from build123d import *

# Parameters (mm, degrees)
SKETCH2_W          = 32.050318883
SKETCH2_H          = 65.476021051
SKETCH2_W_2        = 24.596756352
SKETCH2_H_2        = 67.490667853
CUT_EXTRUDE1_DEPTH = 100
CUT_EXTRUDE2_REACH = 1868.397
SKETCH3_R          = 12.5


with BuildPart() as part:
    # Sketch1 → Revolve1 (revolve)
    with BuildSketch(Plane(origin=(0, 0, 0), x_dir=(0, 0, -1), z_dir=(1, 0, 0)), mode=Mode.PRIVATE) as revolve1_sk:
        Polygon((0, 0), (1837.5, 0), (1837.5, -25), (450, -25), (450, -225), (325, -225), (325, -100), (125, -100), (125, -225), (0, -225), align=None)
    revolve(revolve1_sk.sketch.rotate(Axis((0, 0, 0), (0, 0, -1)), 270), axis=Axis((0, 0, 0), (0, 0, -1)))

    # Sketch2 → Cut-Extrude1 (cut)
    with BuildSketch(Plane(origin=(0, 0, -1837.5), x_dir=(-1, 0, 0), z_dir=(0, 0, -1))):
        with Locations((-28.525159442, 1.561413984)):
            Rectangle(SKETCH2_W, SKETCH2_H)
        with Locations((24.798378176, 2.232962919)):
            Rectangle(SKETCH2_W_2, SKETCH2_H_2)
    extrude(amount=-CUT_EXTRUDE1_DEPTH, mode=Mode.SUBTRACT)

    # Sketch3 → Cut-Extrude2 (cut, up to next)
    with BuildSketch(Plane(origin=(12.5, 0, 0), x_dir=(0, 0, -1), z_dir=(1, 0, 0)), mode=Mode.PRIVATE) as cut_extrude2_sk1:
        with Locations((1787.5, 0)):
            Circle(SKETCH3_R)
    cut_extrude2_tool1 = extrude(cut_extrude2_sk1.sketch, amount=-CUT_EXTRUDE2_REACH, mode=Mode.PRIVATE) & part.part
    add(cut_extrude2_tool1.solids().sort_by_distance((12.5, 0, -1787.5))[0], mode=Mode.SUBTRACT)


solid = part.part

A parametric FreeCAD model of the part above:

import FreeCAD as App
import Part
import Sketcher
from FreeCAD import Vector

doc = App.newDocument("Part")
body = doc.addObject("PartDesign::Body", "Body")

sketch1 = body.newObject("Sketcher::SketchObject", "Sketch")
sketch1.AttachmentSupport = (doc.getObject("YZ_Plane"), [""])
sketch1.MapMode = "FlatFace"
sketch1.addGeometry(Part.LineSegment(Vector(0, -1837.5, 0), Vector(0, 0, 0)), False)
sketch1.addGeometry(Part.LineSegment(Vector(0, 0, 0), Vector(-225, 0, 0)), False)
sketch1.addGeometry(Part.LineSegment(Vector(-225, 0, 0), Vector(-225, -125, 0)), False)
sketch1.addGeometry(Part.LineSegment(Vector(-225, -125, 0), Vector(-100, -125, 0)), False)
sketch1.addGeometry(Part.LineSegment(Vector(-100, -125, 0), Vector(-100, -325, 0)), False)
sketch1.addGeometry(Part.LineSegment(Vector(-100, -325, 0), Vector(-225, -325, 0)), False)
sketch1.addGeometry(Part.LineSegment(Vector(-225, -325, 0), Vector(-225, -450, 0)), False)
sketch1.addGeometry(Part.LineSegment(Vector(-225, -450, 0), Vector(-25, -450, 0)), False)
sketch1.addGeometry(Part.LineSegment(Vector(-25, -450, 0), Vector(-25, -1837.5, 0)), False)
sketch1.addGeometry(Part.LineSegment(Vector(-25, -1837.5, 0), Vector(0, -1837.5, 0)), False)
sketch1.addConstraint(Sketcher.Constraint("Coincident", 0, 2, 1, 1))
sketch1.addConstraint(Sketcher.Constraint("Coincident", 1, 2, 2, 1))
sketch1.addConstraint(Sketcher.Constraint("Coincident", 2, 2, 3, 1))
sketch1.addConstraint(Sketcher.Constraint("Coincident", 3, 2, 4, 1))
sketch1.addConstraint(Sketcher.Constraint("Coincident", 4, 2, 5, 1))
sketch1.addConstraint(Sketcher.Constraint("Coincident", 5, 2, 6, 1))
sketch1.addConstraint(Sketcher.Constraint("Coincident", 6, 2, 7, 1))
sketch1.addConstraint(Sketcher.Constraint("Coincident", 7, 2, 8, 1))
sketch1.addConstraint(Sketcher.Constraint("Coincident", 8, 2, 9, 1))
sketch1.addConstraint(Sketcher.Constraint("Coincident", 9, 2, 0, 1))
sketch1.addConstraint(Sketcher.Constraint("Vertical", 0))
sketch1.addConstraint(Sketcher.Constraint("Horizontal", 1))
sketch1.addConstraint(Sketcher.Constraint("Vertical", 2))
sketch1.addConstraint(Sketcher.Constraint("Horizontal", 3))
sketch1.addConstraint(Sketcher.Constraint("Vertical", 4))
sketch1.addConstraint(Sketcher.Constraint("Horizontal", 5))
sketch1.addConstraint(Sketcher.Constraint("Vertical", 6))
sketch1.addConstraint(Sketcher.Constraint("Horizontal", 7))
sketch1.addConstraint(Sketcher.Constraint("Vertical", 8))
sketch1.addConstraint(Sketcher.Constraint("Horizontal", 9))
sketch1.addConstraint(Sketcher.Constraint("Coincident", 0, 2, -1, 1))
sketch1.addConstraint(Sketcher.Constraint("Vertical", 2, 2, 5, 2))
sketch1.addConstraint(Sketcher.Constraint("Equal", 5, 2))
sketch1.addConstraint(Sketcher.Constraint("Equal", 7, 4))
sketch1.addConstraint(Sketcher.Constraint("Equal", 2, 6))
sketch1.addConstraint(Sketcher.Constraint("DistanceX", 1, 2, 1, 1, 225.0))
sketch1.addConstraint(Sketcher.Constraint("DistanceX", 3, 1, 3, 2, 125.0))
sketch1.addConstraint(Sketcher.Constraint("DistanceX", 7, 1, 7, 2, 200.0))
sketch1.addConstraint(Sketcher.Constraint("DistanceY", 0, 1, 0, 2, 1837.5))
revolution = body.newObject("PartDesign::Revolution", "Revolution")
revolution.Profile = sketch1
revolution.ReferenceAxis = (sketch1, ["V_Axis"])
revolution.Angle = 360

sketch2 = body.newObject("Sketcher::SketchObject", "Sketch001")
sketch2.AttachmentSupport = (doc.getObject("XY_Plane"), [""])
sketch2.MapMode = "FlatFace"
sketch2.AttachmentOffset = App.Placement(Vector(0, 0, -1837.5), App.Rotation())
sketch2.addGeometry(Part.LineSegment(Vector(44.550319, 34.299425, 0), Vector(44.550319, -31.176597, 0)), False)
sketch2.addGeometry(Part.LineSegment(Vector(44.550319, -31.176597, 0), Vector(12.5, -31.176597, 0)), False)
sketch2.addGeometry(Part.LineSegment(Vector(12.5, -31.176597, 0), Vector(12.5, 34.299425, 0)), False)
sketch2.addGeometry(Part.LineSegment(Vector(12.5, 34.299425, 0), Vector(44.550319, 34.299425, 0)), False)
sketch2.addGeometry(Part.LineSegment(Vector(-12.5, 35.978297, 0), Vector(-12.5, -31.512371, 0)), False)
sketch2.addGeometry(Part.LineSegment(Vector(-12.5, -31.512371, 0), Vector(-37.096756, -31.512371, 0)), False)
sketch2.addGeometry(Part.LineSegment(Vector(-37.096756, -31.512371, 0), Vector(-37.096756, 35.978297, 0)), False)
sketch2.addGeometry(Part.LineSegment(Vector(-37.096756, 35.978297, 0), Vector(-12.5, 35.978297, 0)), False)
sketch2.addConstraint(Sketcher.Constraint("Coincident", 0, 2, 1, 1))
sketch2.addConstraint(Sketcher.Constraint("Coincident", 1, 2, 2, 1))
sketch2.addConstraint(Sketcher.Constraint("Coincident", 2, 2, 3, 1))
sketch2.addConstraint(Sketcher.Constraint("Coincident", 3, 2, 0, 1))
sketch2.addConstraint(Sketcher.Constraint("Coincident", 4, 2, 5, 1))
sketch2.addConstraint(Sketcher.Constraint("Coincident", 5, 2, 6, 1))
sketch2.addConstraint(Sketcher.Constraint("Coincident", 6, 2, 7, 1))
sketch2.addConstraint(Sketcher.Constraint("Coincident", 7, 2, 4, 1))
sketch2.addConstraint(Sketcher.Constraint("Vertical", 0))
sketch2.addConstraint(Sketcher.Constraint("Horizontal", 1))
sketch2.addConstraint(Sketcher.Constraint("Vertical", 2))
sketch2.addConstraint(Sketcher.Constraint("Horizontal", 3))
sketch2.addConstraint(Sketcher.Constraint("Vertical", 4))
sketch2.addConstraint(Sketcher.Constraint("Horizontal", 5))
sketch2.addConstraint(Sketcher.Constraint("Vertical", 6))
sketch2.addConstraint(Sketcher.Constraint("Horizontal", 7))
sketch2.addConstraint(Sketcher.Constraint("DistanceX", 4, 2, 1, 2, 25.0))
sketch2.addConstraint(Sketcher.Constraint("DistanceX", -1, 1, 1, 2, 12.5))
sketch2.addConstraint(Sketcher.Constraint("DistanceX", 1, 2, 1, 1, 32.050319))
sketch2.addConstraint(Sketcher.Constraint("DistanceY", 0, 2, 0, 1, 65.476021))
sketch2.addConstraint(Sketcher.Constraint("DistanceX", 5, 2, 5, 1, 24.596756))
sketch2.addConstraint(Sketcher.Constraint("DistanceY", 4, 2, 4, 1, 67.490668))
sketch2.addConstraint(Sketcher.Constraint("DistanceY", 4, 2, -1, 1, 31.512371))
sketch2.addConstraint(Sketcher.Constraint("DistanceY", 0, 2, -1, 1, 31.176597))
pocket1 = body.newObject("PartDesign::Pocket", "Pocket")
pocket1.Profile = sketch2
pocket1.Length = 100
pocket1.Reversed = True

sketch3 = body.newObject("Sketcher::SketchObject", "Sketch002")
sketch3.AttachmentSupport = (doc.getObject("YZ_Plane"), [""])
sketch3.MapMode = "FlatFace"
sketch3.AttachmentOffset = App.Placement(Vector(0, 0, 12.5), App.Rotation())
sketch3.addGeometry(Part.Circle(Vector(0, -1787.5, 0), Vector(0, 0, 1), 12.5), False)
sketch3.addConstraint(Sketcher.Constraint("PointOnObject", 0, 3, -2))
sketch3.addConstraint(Sketcher.Constraint("Diameter", 0, 25.0))
sketch3.addConstraint(Sketcher.Constraint("DistanceY", 0, 3, -1, 1, 1787.5))
pocket2 = body.newObject("PartDesign::Pocket", "Pocket001")
pocket2.Profile = sketch3
pocket2.Type = "UpToFirst"

doc.recompute()
